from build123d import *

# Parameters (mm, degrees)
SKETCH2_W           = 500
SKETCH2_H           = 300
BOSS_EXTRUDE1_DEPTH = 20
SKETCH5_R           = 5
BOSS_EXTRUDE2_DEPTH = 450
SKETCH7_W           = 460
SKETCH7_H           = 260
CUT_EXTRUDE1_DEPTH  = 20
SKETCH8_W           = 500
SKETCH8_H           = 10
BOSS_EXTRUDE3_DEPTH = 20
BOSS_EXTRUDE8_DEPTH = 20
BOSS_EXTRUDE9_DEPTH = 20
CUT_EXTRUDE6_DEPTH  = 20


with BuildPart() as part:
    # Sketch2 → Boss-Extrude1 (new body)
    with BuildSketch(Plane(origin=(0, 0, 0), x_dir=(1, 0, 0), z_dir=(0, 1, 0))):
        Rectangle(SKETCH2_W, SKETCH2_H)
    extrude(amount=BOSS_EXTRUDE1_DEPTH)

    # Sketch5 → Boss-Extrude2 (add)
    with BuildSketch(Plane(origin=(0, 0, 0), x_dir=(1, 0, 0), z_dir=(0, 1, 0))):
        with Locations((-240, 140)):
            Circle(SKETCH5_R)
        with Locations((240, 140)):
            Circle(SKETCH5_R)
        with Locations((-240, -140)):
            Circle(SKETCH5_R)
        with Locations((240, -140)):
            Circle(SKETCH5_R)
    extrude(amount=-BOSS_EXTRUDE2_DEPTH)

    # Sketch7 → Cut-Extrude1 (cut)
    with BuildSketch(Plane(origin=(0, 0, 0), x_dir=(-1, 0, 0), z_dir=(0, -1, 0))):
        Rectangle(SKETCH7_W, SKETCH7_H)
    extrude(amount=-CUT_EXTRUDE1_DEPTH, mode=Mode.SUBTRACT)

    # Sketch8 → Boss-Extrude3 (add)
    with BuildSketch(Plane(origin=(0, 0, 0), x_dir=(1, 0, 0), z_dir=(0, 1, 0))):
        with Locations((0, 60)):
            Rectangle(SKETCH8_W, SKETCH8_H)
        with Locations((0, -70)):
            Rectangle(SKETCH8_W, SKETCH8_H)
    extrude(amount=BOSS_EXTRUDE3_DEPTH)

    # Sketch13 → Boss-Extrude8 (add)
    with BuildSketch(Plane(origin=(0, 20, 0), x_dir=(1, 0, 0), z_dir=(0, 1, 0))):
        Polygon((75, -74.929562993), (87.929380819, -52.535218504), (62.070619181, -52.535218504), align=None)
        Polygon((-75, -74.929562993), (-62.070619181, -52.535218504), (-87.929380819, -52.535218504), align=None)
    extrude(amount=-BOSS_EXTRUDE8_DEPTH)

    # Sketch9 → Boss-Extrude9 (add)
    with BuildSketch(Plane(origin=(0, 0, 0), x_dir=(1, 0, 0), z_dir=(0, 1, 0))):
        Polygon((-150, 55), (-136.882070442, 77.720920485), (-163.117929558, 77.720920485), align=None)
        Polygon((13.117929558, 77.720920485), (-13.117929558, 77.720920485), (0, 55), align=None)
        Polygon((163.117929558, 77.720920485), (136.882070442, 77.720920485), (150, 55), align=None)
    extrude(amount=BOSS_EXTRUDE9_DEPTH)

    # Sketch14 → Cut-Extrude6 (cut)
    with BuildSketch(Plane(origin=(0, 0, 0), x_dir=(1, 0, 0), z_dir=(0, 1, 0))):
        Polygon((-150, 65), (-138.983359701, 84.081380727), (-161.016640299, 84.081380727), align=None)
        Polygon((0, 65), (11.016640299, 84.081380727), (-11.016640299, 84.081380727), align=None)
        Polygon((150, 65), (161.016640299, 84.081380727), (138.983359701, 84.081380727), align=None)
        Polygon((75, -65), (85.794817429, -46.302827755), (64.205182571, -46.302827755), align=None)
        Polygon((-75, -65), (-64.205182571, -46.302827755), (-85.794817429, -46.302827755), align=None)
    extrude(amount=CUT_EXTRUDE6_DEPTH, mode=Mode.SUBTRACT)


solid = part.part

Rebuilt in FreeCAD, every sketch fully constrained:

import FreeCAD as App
import Part
import Sketcher
Q = App.Units.Quantity

doc = App.newDocument("Part")
body = doc.addObject("PartDesign::Body", "Body")

# Sketch on XZ plane
sketch1 = body.newObject("Sketcher::SketchObject", "Sketch")
sketch1.AttachmentSupport = (doc.getObject("XZ_Plane"), [""])
sketch1.MapMode = "FlatFace"
sketch1.addGeometry(Part.LineSegment(App.Vector(-250, -150, 0), App.Vector(-250, 150, 0)), False)
sketch1.addGeometry(Part.LineSegment(App.Vector(-250, 150, 0), App.Vector(250, 150, 0)), False)
sketch1.addGeometry(Part.LineSegment(App.Vector(250, 150, 0), App.Vector(250, -150, 0)), False)
sketch1.addGeometry(Part.LineSegment(App.Vector(250, -150, 0), App.Vector(-250, -150, 0)), False)
sketch1.addConstraint(Sketcher.Constraint("Coincident", 0, 2, 1, 1))
sketch1.addConstraint(Sketcher.Constraint("Coincident", 1, 2, 2, 1))
sketch1.addConstraint(Sketcher.Constraint("Coincident", 2, 2, 3, 1))
sketch1.addConstraint(Sketcher.Constraint("Coincident", 3, 2, 0, 1))
sketch1.addConstraint(Sketcher.Constraint("Vertical", 0))
sketch1.addConstraint(Sketcher.Constraint("Horizontal", 1))
sketch1.addConstraint(Sketcher.Constraint("Vertical", 2))
sketch1.addConstraint(Sketcher.Constraint("Horizontal", 3))
sketch1.addConstraint(Sketcher.Constraint("Symmetric", 0, 2, 2, 2, -1, 1))
sketch1.addConstraint(Sketcher.Constraint("DistanceX", 1, 1, 1, 2, 500.0))
sketch1.addConstraint(Sketcher.Constraint("DistanceY", 0, 1, 0, 2, 300.0))
pad1 = body.newObject("PartDesign::Pad", "Pad")
pad1.Profile = sketch1
pad1.Length = 20
pad1.Reversed = True

# Sketch on XZ plane
sketch2 = body.newObject("Sketcher::SketchObject", "Sketch001")
sketch2.AttachmentSupport = (doc.getObject("XZ_Plane"), [""])
sketch2.MapMode = "FlatFace"
sketch2.addGeometry(Part.Circle(App.Vector(-240, -140, 0), App.Vector(0, 0, 1), 5), False)
sketch2.addGeometry(Part.Circle(App.Vector(240, -140, 0), App.Vector(0, 0, 1), 5), False)
sketch2.addGeometry(Part.Circle(App.Vector(-240, 140, 0), App.Vector(0, 0, 1), 5), False)
sketch2.addGeometry(Part.Circle(App.Vector(240, 140, 0), App.Vector(0, 0, 1), 5), False)
sketch2.addConstraint(Sketcher.Constraint("Equal", 0, 1))
sketch2.addConstraint(Sketcher.Constraint("Equal", 1, 2))
sketch2.addConstraint(Sketcher.Constraint("Equal", 2, 3))
sketch2.addConstraint(Sketcher.Constraint("Symmetric", 1, 3, 2, 3, -1, 1))
sketch2.addConstraint(Sketcher.Constraint("Symmetric", 0, 3, 3, 3, -1, 1))
sketch2.addConstraint(Sketcher.Constraint("Symmetric", 0, 3, 1, 3, -2))
sketch2.addConstraint(Sketcher.Constraint("Diameter", 0, 10.0))
sketch2.addConstraint(Sketcher.Constraint("DistanceX", 0, 3, -1, 1, 240.0))
sketch2.addConstraint(Sketcher.Constraint("DistanceY", 0, 3, -1, 1, 140.0))
pad2 = body.newObject("PartDesign::Pad", "Pad001")
pad2.Profile = sketch2
pad2.Length = 450

# Sketch on XZ plane
sketch3 = body.newObject("Sketcher::SketchObject", "Sketch002")
sketch3.AttachmentSupport = (doc.getObject("XZ_Plane"), [""])
sketch3.MapMode = "FlatFace"
sketch3.addGeometry(Part.LineSegment(App.Vector(230, -130, 0), App.Vector(230, 130, 0)), False)
sketch3.addGeometry(Part.LineSegment(App.Vector(230, 130, 0), App.Vector(-230, 130, 0)), False)
sketch3.addGeometry(Part.LineSegment(App.Vector(-230, 130, 0), App.Vector(-230, -130, 0)), False)
sketch3.addGeometry(Part.LineSegment(App.Vector(-230, -130, 0), App.Vector(230, -130, 0)), False)
sketch3.addConstraint(Sketcher.Constraint("Coincident", 0, 2, 1, 1))
sketch3.addConstraint(Sketcher.Constraint("Coincident", 1, 2, 2, 1))
sketch3.addConstraint(Sketcher.Constraint("Coincident", 2, 2, 3, 1))
sketch3.addConstraint(Sketcher.Constraint("Coincident", 3, 2, 0, 1))
sketch3.addConstraint(Sketcher.Constraint("Vertical", 0))
sketch3.addConstraint(Sketcher.Constraint("Horizontal", 1))
sketch3.addConstraint(Sketcher.Constraint("Vertical", 2))
sketch3.addConstraint(Sketcher.Constraint("Horizontal", 3))
sketch3.addConstraint(Sketcher.Constraint("Symmetric", 0, 2, 2, 2, -1, 1))
sketch3.addConstraint(Sketcher.Constraint("DistanceX", 1, 2, 1, 1, 460.0))
sketch3.addConstraint(Sketcher.Constraint("DistanceY", 0, 1, 0, 2, 260.0))
pocket1 = body.newObject("PartDesign::Pocket", "Pocket")
pocket1.Profile = sketch3
pocket1.Length = 20

# Sketch on XZ plane
sketch4 = body.newObject("Sketcher::SketchObject", "Sketch003")
sketch4.AttachmentSupport = (doc.getObject("XZ_Plane"), [""])
sketch4.MapMode = "FlatFace"
sketch4.addGeometry(Part.LineSegment(App.Vector(-250, -65, 0), App.Vector(-250, -55, 0)), False)
sketch4.addGeometry(Part.LineSegment(App.Vector(-250, -55, 0), App.Vector(250, -55, 0)), False)
sketch4.addGeometry(Part.LineSegment(App.Vector(250, -55, 0), App.Vector(250, -65, 0)), False)
sketch4.addGeometry(Part.LineSegment(App.Vector(250, -65, 0), App.Vector(-250, -65, 0)), False)
sketch4.addGeometry(Part.LineSegment(App.Vector(-250, 65, 0), App.Vector(-250, 75, 0)), False)
sketch4.addGeometry(Part.LineSegment(App.Vector(-250, 75, 0), App.Vector(250, 75, 0)), False)
sketch4.addGeometry(Part.LineSegment(App.Vector(250, 75, 0), App.Vector(250, 65, 0)), False)
sketch4.addGeometry(Part.LineSegment(App.Vector(250, 65, 0), App.Vector(-250, 65, 0)), False)
sketch4.addConstraint(Sketcher.Constraint("Coincident", 0, 2, 1, 1))
sketch4.addConstraint(Sketcher.Constraint("Coincident", 1, 2, 2, 1))
sketch4.addConstraint(Sketcher.Constraint("Coincident", 2, 2, 3, 1))
sketch4.addConstraint(Sketcher.Constraint("Coincident", 3, 2, 0, 1))
sketch4.addConstraint(Sketcher.Constraint("Coincident", 4, 2, 5, 1))
sketch4.addConstraint(Sketcher.Constraint("Coincident", 5, 2, 6, 1))
sketch4.addConstraint(Sketcher.Constraint("Coincident", 6, 2, 7, 1))
sketch4.addConstraint(Sketcher.Constraint("Coincident", 7, 2, 4, 1))
sketch4.addConstraint(Sketcher.Constraint("Vertical", 0))
sketch4.addConstraint(Sketcher.Constraint("Horizontal", 1))
sketch4.addConstraint(Sketcher.Constraint("Vertical", 2))
sketch4.addConstraint(Sketcher.Constraint("Horizontal", 3))
sketch4.addConstraint(Sketcher.Constraint("Vertical", 4))
sketch4.addConstraint(Sketcher.Constraint("Horizontal", 5))
sketch4.addConstraint(Sketcher.Constraint("Vertical", 6))
sketch4.addConstraint(Sketcher.Constraint("Horizontal", 7))
sketch4.addConstraint(Sketcher.Constraint("Symmetric", 3, 2, 6, 2, -1, 1))
sketch4.addConstraint(Sketcher.Constraint("Vertical", 3, 2, 4, 2))
sketch4.addConstraint(Sketcher.Constraint("Vertical", 2, 2, 5, 2))
sketch4.addConstraint(Sketcher.Constraint("Equal", 2, 4))
sketch4.addConstraint(Sketcher.Constraint("DistanceX", 1, 1, 1, 2, 500.0))
sketch4.addConstraint(Sketcher.Constraint("DistanceY", 0, 1, 0, 2, 10.0))
sketch4.addConstraint(Sketcher.Constraint("DistanceY", 0, 2, -1, 1, 55.0))
pad3 = body.newObject("PartDesign::Pad", "Pad002")
pad3.Profile = sketch4
pad3.Length = 20
pad3.Reversed = True

# Sketch on XZ plane
sketch5 = body.newObject("Sketcher::SketchObject", "Sketch004")
sketch5.AttachmentSupport = (doc.getObject("XZ_Plane"), [""])
sketch5.MapMode = "FlatFace"
sketch5.AttachmentOffset = App.Placement(App.Vector(0, 0, -20), App.Rotation())
sketch5.addGeometry(Part.LineSegment(App.Vector(75, 75, 0), App.Vector(88, 53, 0)), False)
sketch5.addGeometry(Part.LineSegment(App.Vector(88, 53, 0), App.Vector(62, 53, 0)), False)
sketch5.addGeometry(Part.LineSegment(App.Vector(62, 53, 0), App.Vector(75, 75, 0)), False)
sketch5.addGeometry(Part.LineSegment(App.Vector(-75, 75, 0), App.Vector(-62, 53, 0)), False)
sketch5.addGeometry(Part.LineSegment(App.Vector(-62, 53, 0), App.Vector(-88, 53, 0)), False)
sketch5.addGeometry(Part.LineSegment(App.Vector(-88, 53, 0), App.Vector(-75, 75, 0)), False)
sketch5.addConstraint(Sketcher.Constraint("Coincident", 0, 2, 1, 1))
sketch5.addConstraint(Sketcher.Constraint("Coincident", 1, 2, 2, 1))
sketch5.addConstraint(Sketcher.Constraint("Coincident", 2, 2, 0, 1))
sketch5.addConstraint(Sketcher.Constraint("Coincident", 3, 2, 4, 1))
sketch5.addConstraint(Sketcher.Constraint("Coincident", 4, 2, 5, 1))
sketch5.addConstraint(Sketcher.Constraint("Coincident", 5, 2, 3, 1))
sketch5.addConstraint(Sketcher.Constraint("Horizontal", 1))
sketch5.addConstraint(Sketcher.Constraint("Horizontal", 4))
sketch5.addConstraint(Sketcher.Constraint("Symmetric", 1, 2, 3, 2, -2))
sketch5.addConstraint(Sketcher.Constraint("Symmetric", 2, 2, 5, 2, -2))
sketch5.addConstraint(Sketcher.Constraint("Parallel", 0, 3))
sketch5.addConstraint(Sketcher.Constraint("Parallel", 2, 5))
sketch5.addConstraint(Sketcher.Constraint("Angle", 0, Q("-60 deg")))
sketch5.addConstraint(Sketcher.Constraint("DistanceX", -1, 1, 2, 2, 75.0))
sketch5.addConstraint(Sketcher.Constraint("DistanceX", 1, 2, 1, 1, 25.858762))
sketch5.addConstraint(Sketcher.Constraint("DistanceY", -1, 1, 0, 2, 52.535219))
pad4 = body.newObject("PartDesign::Pad", "Pad003")
pad4.Profile = sketch5
pad4.Length = 20

# Sketch on XZ plane
sketch6 = body.newObject("Sketcher::SketchObject", "Sketch005")
sketch6.AttachmentSupport = (doc.getObject("XZ_Plane"), [""])
sketch6.MapMode = "FlatFace"
sketch6.addGeometry(Part.LineSegment(App.Vector(-150, -55, 0), App.Vector(-137, -78, 0)), False)
sketch6.addGeometry(Part.LineSegment(App.Vector(-137, -78, 0), App.Vector(-163, -78, 0)), False)
sketch6.addGeometry(Part.LineSegment(App.Vector(-163, -78, 0), App.Vector(-150, -55, 0)), False)
sketch6.addGeometry(Part.LineSegment(App.Vector(13, -78, 0), App.Vector(-13, -78, 0)), False)
sketch6.addGeometry(Part.LineSegment(App.Vector(-13, -78, 0), App.Vector(0, -55, 0)), False)
sketch6.addGeometry(Part.LineSegment(App.Vector(0, -55, 0), App.Vector(13, -78, 0)), False)
sketch6.addGeometry(Part.LineSegment(App.Vector(163, -78, 0), App.Vector(137, -78, 0)), False)
sketch6.addGeometry(Part.LineSegment(App.Vector(137, -78, 0), App.Vector(150, -55, 0)), False)
sketch6.addGeometry(Part.LineSegment(App.Vector(150, -55, 0), App.Vector(163, -78, 0)), False)
sketch6.addConstraint(Sketcher.Constraint("Coincident", 0, 2, 1, 1))
sketch6.addConstraint(Sketcher.Constraint("Coincident", 1, 2, 2, 1))
sketch6.addConstraint(Sketcher.Constraint("Coincident", 2, 2, 0, 1))
sketch6.addConstraint(Sketcher.Constraint("Coincident", 3, 2, 4, 1))
sketch6.addConstraint(Sketcher.Constraint("Coincident", 4, 2, 5, 1))
sketch6.addConstraint(Sketcher.Constraint("Coincident", 5, 2, 3, 1))
sketch6.addConstraint(Sketcher.Constraint("Coincident", 6, 2, 7, 1))
sketch6.addConstraint(Sketcher.Constraint("Coincident", 7, 2, 8, 1))
sketch6.addConstraint(Sketcher.Constraint("Coincident", 8, 2, 6, 1))
sketch6.addConstraint(Sketcher.Constraint("Horizontal", 1))
sketch6.addConstraint(Sketcher.Constraint("Horizontal", 3))
sketch6.addConstraint(Sketcher.Constraint("Horizontal", 6))
sketch6.addConstraint(Sketcher.Constraint("Symmetric", 0, 2, 6, 2, -2))
sketch6.addConstraint(Sketcher.Constraint("Symmetric", 2, 2, 7, 2, -2))
sketch6.addConstraint(Sketcher.Constraint("PointOnObject", 4, 2, -2))
sketch6.addConstraint(Sketcher.Constraint("Parallel", 2, 4))
sketch6.addConstraint(Sketcher.Constraint("Parallel", 0, 5))
sketch6.addConstraint(Sketcher.Constraint("Parallel", 4, 7))
sketch6.addConstraint(Sketcher.Constraint("Parallel", 5, 8))
sketch6.addConstraint(Sketcher.Constraint("Horizontal", 1, 2, 3, 2))
sketch6.addConstraint(Sketcher.Constraint("Horizontal", 2, 2, 4, 2))
sketch6.addConstraint(Sketcher.Constraint("Angle", 0, Q("-60 deg")))
sketch6.addConstraint(Sketcher.Constraint("DistanceX", 2, 2, -1, 1, 150.0))
sketch6.addConstraint(Sketcher.Constraint("DistanceY", 2, 2, -1, 1, 55.0))
sketch6.addConstraint(Sketcher.Constraint("DistanceX", 1, 2, 1, 1, 26.235859))
pad5 = body.newObject("PartDesign::Pad", "Pad004")
pad5.Profile = sketch6
pad5.Length = 20
pad5.Reversed = True

# Sketch on XZ plane
sketch7 = body.newObject("Sketcher::SketchObject", "Sketch006")
sketch7.AttachmentSupport = (doc.getObject("XZ_Plane"), [""])
sketch7.MapMode = "FlatFace"
sketch7.addGeometry(Part.LineSegment(App.Vector(-150, -65, 0), App.Vector(-139, -84, 0)), False)
sketch7.addGeometry(Part.LineSegment(App.Vector(-139, -84, 0), App.Vector(-161, -84, 0)), False)
sketch7.addGeometry(Part.LineSegment(App.Vector(-161, -84, 0), App.Vector(-150, -65, 0)), False)
sketch7.addGeometry(Part.LineSegment(App.Vector(0, -65, 0), App.Vector(11, -84, 0)), False)
sketch7.addGeometry(Part.LineSegment(App.Vector(11, -84, 0), App.Vector(-11, -84, 0)), False)
sketch7.addGeometry(Part.LineSegment(App.Vector(-11, -84, 0), App.Vector(0, -65, 0)), False)
sketch7.addGeometry(Part.LineSegment(App.Vector(150, -65, 0), App.Vector(161, -84, 0)), False)
sketch7.addGeometry(Part.LineSegment(App.Vector(161, -84, 0), App.Vector(139, -84, 0)), False)
sketch7.addGeometry(Part.LineSegment(App.Vector(139, -84, 0), App.Vector(150, -65, 0)), False)
sketch7.addGeometry(Part.LineSegment(App.Vector(75, 65, 0), App.Vector(86, 46, 0)), False)
sketch7.addGeometry(Part.LineSegment(App.Vector(86, 46, 0), App.Vector(64, 46, 0)), False)
sketch7.addGeometry(Part.LineSegment(App.Vector(64, 46, 0), App.Vector(75, 65, 0)), False)
sketch7.addGeometry(Part.LineSegment(App.Vector(-75, 65, 0), App.Vector(-64, 46, 0)), False)
sketch7.addGeometry(Part.LineSegment(App.Vector(-64, 46, 0), App.Vector(-86, 46, 0)), False)
sketch7.addGeometry(Part.LineSegment(App.Vector(-86, 46, 0), App.Vector(-75, 65, 0)), False)
sketch7.addConstraint(Sketcher.Constraint("Coincident", 0, 2, 1, 1))
sketch7.addConstraint(Sketcher.Constraint("Coincident", 1, 2, 2, 1))
sketch7.addConstraint(Sketcher.Constraint("Coincident", 2, 2, 0, 1))
sketch7.addConstraint(Sketcher.Constraint("Coincident", 3, 2, 4, 1))
sketch7.addConstraint(Sketcher.Constraint("Coincident", 4, 2, 5, 1))
sketch7.addConstraint(Sketcher.Constraint("Coincident", 5, 2, 3, 1))
sketch7.addConstraint(Sketcher.Constraint("Coincident", 6, 2, 7, 1))
sketch7.addConstraint(Sketcher.Constraint("Coincident", 7, 2, 8, 1))
sketch7.addConstraint(Sketcher.Constraint("Coincident", 8, 2, 6, 1))
sketch7.addConstraint(Sketcher.Constraint("Coincident", 9, 2, 10, 1))
sketch7.addConstraint(Sketcher.Constraint("Coincident", 10, 2, 11, 1))
sketch7.addConstraint(Sketcher.Constraint("Coincident", 11, 2, 9, 1))
sketch7.addConstraint(Sketcher.Constraint("Coincident", 12, 2, 13, 1))
sketch7.addConstraint(Sketcher.Constraint("Coincident", 13, 2, 14, 1))
sketch7.addConstraint(Sketcher.Constraint("Coincident", 14, 2, 12, 1))
sketch7.addConstraint(Sketcher.Constraint("Horizontal", 1))
sketch7.addConstraint(Sketcher.Constraint("Horizontal", 4))
sketch7.addConstraint(Sketcher.Constraint("Horizontal", 7))
sketch7.addConstraint(Sketcher.Constraint("Horizontal", 10))
sketch7.addConstraint(Sketcher.Constraint("Horizontal", 13))
sketch7.addConstraint(Sketcher.Constraint("Symmetric", 1, 2, 6, 2, -2))
sketch7.addConstraint(Sketcher.Constraint("Symmetric", 2, 2, 8, 2, -2))
sketch7.addConstraint(Sketcher.Constraint("Symmetric", 10, 2, 12, 2, -2))
sketch7.addConstraint(Sketcher.Constraint("Symmetric", 11, 2, 14, 2, -2))
sketch7.addConstraint(Sketcher.Constraint("PointOnObject", 5, 2, -2))
sketch7.addConstraint(Sketcher.Constraint("Parallel", 0, 3))
sketch7.addConstraint(Sketcher.Constraint("Parallel", 2, 5))
sketch7.addConstraint(Sketcher.Constraint("Parallel", 3, 6))
sketch7.addConstraint(Sketcher.Constraint("Parallel", 5, 8))
sketch7.addConstraint(Sketcher.Constraint("Parallel", 6, 9))
sketch7.addConstraint(Sketcher.Constraint("Parallel", 8, 11))
sketch7.addConstraint(Sketcher.Constraint("Parallel", 11, 14))
sketch7.addConstraint(Sketcher.Constraint("Horizontal", 1, 2, 3, 2))
sketch7.addConstraint(Sketcher.Constraint("Horizontal", 2, 2, 5, 2))
sketch7.addConstraint(Sketcher.Constraint("Angle", 0, Q("-60 deg")))
sketch7.addConstraint(Sketcher.Constraint("DistanceX", 2, 2, -1, 1, 150.0))
sketch7.addConstraint(Sketcher.Constraint("DistanceY", 2, 2, -1, 1, 65.0))
sketch7.addConstraint(Sketcher.Constraint("DistanceX", -1, 1, 11, 2, 75.0))
sketch7.addConstraint(Sketcher.Constraint("DistanceY", -1, 1, 11, 2, 65.0))
sketch7.addConstraint(Sketcher.Constraint("DistanceX", 1, 2, 1, 1, 22.033281))
sketch7.addConstraint(Sketcher.Constraint("DistanceX", 10, 2, 10, 1, 21.589635))
pocket2 = body.newObject("PartDesign::Pocket", "Pocket001")
pocket2.Profile = sketch7
pocket2.Length = 20

doc.recompute()
